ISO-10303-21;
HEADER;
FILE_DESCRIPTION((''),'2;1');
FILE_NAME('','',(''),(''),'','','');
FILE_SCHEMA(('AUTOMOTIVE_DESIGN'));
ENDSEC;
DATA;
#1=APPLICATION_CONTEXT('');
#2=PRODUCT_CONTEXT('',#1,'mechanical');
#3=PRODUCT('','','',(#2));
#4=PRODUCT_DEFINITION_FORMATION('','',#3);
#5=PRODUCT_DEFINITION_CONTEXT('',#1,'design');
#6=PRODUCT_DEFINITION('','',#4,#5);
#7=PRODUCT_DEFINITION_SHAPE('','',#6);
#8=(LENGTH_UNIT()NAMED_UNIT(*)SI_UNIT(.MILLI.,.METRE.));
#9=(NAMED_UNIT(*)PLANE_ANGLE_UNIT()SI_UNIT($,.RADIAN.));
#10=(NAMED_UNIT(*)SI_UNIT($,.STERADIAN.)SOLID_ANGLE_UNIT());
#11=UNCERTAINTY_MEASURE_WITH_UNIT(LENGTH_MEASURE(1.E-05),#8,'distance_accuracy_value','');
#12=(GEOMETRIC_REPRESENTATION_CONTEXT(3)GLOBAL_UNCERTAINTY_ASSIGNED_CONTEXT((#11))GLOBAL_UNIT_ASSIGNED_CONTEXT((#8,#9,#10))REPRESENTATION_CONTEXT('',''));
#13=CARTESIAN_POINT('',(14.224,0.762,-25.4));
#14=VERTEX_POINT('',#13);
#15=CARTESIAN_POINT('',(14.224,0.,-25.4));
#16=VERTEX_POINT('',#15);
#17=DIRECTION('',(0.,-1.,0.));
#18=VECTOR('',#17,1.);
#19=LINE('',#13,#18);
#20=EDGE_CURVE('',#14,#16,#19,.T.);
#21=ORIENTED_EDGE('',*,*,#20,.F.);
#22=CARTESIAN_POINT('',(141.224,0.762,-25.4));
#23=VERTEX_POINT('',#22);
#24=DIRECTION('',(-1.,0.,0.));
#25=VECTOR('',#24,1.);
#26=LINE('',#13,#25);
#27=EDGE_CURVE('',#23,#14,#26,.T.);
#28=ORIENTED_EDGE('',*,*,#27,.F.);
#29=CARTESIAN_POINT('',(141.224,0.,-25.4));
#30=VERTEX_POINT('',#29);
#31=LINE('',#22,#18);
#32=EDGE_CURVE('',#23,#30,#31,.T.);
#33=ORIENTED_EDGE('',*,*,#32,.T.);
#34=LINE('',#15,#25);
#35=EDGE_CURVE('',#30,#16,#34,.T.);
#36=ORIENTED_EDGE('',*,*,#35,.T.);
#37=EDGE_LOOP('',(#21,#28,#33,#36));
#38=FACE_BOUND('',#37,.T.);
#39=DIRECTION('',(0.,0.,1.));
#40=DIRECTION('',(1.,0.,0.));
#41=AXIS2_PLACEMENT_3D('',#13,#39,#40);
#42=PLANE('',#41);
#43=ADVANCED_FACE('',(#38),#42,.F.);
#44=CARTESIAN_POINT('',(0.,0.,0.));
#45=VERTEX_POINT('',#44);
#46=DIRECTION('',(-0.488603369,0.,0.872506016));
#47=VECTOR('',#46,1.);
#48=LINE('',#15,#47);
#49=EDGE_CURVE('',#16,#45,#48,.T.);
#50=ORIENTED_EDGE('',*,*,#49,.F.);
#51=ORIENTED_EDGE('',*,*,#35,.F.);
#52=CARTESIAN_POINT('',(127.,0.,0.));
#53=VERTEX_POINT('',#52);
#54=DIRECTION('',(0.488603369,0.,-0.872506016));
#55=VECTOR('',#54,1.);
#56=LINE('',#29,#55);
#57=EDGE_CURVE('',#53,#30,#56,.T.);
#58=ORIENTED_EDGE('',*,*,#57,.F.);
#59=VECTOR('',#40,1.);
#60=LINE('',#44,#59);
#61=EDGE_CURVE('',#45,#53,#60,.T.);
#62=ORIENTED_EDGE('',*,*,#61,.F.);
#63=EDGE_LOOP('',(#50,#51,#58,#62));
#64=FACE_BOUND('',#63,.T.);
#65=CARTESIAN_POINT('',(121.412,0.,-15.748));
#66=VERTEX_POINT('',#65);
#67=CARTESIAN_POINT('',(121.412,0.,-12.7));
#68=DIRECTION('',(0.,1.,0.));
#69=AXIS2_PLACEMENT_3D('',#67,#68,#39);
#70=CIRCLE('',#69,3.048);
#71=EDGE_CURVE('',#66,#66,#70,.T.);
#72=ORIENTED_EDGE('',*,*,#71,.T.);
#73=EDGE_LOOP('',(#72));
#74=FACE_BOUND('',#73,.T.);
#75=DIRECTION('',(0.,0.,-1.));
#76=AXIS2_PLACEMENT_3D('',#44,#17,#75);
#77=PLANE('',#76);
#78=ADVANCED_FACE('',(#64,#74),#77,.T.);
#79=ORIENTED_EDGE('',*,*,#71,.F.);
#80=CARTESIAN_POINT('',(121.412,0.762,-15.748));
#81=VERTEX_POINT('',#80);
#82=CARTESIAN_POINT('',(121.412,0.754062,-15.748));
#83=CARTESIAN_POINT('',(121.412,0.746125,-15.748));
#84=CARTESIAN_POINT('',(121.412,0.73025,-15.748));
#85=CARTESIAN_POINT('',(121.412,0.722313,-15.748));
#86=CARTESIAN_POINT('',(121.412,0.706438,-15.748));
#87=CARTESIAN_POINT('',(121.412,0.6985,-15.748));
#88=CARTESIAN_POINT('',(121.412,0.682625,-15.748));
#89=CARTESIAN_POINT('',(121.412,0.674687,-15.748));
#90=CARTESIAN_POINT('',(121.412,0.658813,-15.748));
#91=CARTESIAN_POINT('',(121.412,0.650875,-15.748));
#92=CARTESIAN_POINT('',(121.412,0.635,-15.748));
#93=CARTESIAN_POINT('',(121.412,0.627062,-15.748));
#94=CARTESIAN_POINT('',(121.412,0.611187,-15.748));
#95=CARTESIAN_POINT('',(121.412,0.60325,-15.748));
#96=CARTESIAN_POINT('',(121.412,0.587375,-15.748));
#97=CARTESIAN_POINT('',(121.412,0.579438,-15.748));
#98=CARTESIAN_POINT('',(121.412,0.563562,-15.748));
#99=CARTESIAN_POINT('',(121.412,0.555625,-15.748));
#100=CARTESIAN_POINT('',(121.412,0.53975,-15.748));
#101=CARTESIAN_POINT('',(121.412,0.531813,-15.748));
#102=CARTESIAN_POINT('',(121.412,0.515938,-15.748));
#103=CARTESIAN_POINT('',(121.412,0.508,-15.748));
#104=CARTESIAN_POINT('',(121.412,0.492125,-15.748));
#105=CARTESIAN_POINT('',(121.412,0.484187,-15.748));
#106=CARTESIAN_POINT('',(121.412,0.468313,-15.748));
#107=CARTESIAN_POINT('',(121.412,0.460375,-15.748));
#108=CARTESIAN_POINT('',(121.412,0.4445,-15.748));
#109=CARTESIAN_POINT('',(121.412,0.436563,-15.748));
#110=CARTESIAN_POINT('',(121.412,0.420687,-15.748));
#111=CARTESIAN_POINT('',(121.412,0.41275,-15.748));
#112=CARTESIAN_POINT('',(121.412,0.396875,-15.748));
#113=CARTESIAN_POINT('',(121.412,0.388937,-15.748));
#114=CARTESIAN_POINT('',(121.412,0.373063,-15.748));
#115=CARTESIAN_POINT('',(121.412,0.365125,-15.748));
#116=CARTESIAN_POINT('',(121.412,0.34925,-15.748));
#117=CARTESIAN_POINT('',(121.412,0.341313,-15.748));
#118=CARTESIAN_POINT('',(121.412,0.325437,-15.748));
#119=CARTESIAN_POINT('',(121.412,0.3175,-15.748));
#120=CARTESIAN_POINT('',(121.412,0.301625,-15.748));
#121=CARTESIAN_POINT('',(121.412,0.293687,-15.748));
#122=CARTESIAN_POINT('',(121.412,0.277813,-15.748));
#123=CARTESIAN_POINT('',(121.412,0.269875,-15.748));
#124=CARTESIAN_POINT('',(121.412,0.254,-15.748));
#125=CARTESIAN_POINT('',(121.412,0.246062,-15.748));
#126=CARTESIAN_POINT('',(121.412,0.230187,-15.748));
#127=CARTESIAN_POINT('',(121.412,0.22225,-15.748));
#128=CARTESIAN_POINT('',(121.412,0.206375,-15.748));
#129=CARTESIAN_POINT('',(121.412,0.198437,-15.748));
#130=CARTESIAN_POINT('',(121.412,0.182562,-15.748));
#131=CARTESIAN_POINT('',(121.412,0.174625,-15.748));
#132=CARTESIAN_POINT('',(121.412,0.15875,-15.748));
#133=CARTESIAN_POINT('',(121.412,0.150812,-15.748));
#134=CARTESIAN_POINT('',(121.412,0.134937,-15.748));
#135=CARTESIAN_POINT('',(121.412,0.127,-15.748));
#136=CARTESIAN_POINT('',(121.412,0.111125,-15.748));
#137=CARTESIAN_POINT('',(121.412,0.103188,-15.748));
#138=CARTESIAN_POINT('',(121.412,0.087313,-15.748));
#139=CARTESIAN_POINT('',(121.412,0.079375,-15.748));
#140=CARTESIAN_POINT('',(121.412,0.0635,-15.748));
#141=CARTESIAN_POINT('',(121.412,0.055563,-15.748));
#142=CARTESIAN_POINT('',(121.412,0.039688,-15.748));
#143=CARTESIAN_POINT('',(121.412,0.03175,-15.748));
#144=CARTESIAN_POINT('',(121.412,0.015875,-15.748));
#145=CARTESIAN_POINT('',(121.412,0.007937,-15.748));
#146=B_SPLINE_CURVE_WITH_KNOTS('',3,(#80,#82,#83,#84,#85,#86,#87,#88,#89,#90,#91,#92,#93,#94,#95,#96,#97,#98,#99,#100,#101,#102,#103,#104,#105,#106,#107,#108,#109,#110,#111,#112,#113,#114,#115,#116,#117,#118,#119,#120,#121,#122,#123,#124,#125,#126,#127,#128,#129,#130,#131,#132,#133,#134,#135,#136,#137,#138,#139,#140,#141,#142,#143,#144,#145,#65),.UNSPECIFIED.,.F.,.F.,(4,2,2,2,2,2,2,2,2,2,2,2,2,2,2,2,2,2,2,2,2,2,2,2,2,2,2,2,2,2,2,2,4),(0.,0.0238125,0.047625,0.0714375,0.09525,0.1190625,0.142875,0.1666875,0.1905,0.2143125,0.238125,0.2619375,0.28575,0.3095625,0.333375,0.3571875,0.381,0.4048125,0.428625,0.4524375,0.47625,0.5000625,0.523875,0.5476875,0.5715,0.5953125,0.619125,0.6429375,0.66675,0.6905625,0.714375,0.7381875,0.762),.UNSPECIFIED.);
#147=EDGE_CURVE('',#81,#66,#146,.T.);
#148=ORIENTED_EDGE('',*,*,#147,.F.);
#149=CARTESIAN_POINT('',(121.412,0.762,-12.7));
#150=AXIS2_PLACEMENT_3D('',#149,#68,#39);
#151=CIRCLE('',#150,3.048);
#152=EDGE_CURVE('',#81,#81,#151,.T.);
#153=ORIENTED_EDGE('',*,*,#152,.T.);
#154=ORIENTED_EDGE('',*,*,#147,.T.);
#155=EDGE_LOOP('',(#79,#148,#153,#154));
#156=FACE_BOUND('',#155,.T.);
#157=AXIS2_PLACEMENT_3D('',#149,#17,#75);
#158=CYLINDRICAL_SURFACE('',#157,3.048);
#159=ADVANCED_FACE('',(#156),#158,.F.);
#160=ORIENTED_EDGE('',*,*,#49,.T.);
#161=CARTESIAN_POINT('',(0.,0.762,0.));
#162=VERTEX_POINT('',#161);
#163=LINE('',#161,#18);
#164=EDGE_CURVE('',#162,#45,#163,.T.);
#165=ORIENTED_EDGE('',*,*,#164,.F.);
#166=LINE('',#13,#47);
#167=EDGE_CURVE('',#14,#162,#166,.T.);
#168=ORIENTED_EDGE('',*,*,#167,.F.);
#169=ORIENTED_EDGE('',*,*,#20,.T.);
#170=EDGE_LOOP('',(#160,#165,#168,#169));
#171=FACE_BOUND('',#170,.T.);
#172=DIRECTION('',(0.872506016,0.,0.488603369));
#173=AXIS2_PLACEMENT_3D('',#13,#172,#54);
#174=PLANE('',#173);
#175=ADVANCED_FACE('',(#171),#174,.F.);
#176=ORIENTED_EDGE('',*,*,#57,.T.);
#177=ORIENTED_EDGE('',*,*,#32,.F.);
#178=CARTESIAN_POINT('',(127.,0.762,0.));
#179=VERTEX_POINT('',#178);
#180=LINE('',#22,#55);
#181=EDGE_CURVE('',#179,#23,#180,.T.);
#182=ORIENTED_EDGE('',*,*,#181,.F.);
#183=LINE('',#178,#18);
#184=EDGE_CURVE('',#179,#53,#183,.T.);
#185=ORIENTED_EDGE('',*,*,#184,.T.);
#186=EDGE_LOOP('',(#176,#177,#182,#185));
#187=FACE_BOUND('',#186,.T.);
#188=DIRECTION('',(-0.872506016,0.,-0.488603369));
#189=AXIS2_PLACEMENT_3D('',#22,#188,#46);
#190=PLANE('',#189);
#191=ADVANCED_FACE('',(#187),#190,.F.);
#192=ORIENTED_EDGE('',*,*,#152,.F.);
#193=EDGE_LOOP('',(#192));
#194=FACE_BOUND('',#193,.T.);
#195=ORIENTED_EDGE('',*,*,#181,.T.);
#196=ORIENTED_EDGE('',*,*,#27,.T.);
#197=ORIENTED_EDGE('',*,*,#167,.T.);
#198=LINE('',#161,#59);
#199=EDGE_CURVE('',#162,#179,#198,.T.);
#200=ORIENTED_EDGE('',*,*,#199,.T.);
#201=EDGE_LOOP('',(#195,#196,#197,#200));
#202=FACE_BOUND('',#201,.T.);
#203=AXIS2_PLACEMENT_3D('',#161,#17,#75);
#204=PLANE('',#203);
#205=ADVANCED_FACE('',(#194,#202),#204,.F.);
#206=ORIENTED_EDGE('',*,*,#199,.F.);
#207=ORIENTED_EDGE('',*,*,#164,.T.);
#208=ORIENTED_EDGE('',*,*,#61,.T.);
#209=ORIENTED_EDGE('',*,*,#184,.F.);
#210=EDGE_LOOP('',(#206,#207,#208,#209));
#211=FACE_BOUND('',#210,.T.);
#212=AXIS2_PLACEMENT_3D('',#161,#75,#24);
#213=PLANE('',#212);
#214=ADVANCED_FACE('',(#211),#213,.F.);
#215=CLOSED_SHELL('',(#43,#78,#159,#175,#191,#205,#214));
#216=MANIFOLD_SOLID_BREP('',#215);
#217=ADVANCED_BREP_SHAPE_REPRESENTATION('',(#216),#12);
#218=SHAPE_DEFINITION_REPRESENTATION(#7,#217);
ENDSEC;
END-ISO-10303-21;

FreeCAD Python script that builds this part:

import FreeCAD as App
import Part
import Sketcher
Q = App.Units.Quantity

doc = App.newDocument("Part")
params = doc.addObject("Spreadsheet::Sheet", "Params")
for row, (alias, value) in enumerate([
    ("sketch1_diameter", "0.24 in"),
    ("sketch1_width", "5 in"),
    ("pad1_length", "0.03 in"),
], start=1):
    params.set(f"A{row}", alias)
    params.set(f"B{row}", "=" + value)
    params.setAlias(f"B{row}", alias)

body = doc.addObject("PartDesign::Body", "Body")

sketch1 = body.newObject("Sketcher::SketchObject", "Sketch")
sketch1.AttachmentSupport = (doc.getObject("XZ_Plane"), [""])
sketch1.MapMode = "FlatFace"
sketch1.addGeometry([
    Part.LineSegment(App.Vector(14.224, -25.4, 0), App.Vector(0, 0, 0)),
    Part.LineSegment(App.Vector(0, 0, 0), App.Vector(127, 0, 0)),
    Part.LineSegment(App.Vector(127, 0, 0), App.Vector(141.224, -25.4, 0)),
    Part.LineSegment(App.Vector(141.224, -25.4, 0), App.Vector(14.224, -25.4, 0)),
    Part.Circle(App.Vector(121.412, -12.7, 0), App.Vector(0, 0, 1), 3.048),
], False)
sketch1.addConstraint([
    Sketcher.Constraint("Coincident", 0, 2, 1, 1),
    Sketcher.Constraint("Coincident", 1, 2, 2, 1),
    Sketcher.Constraint("Coincident", 2, 2, 3, 1),
    Sketcher.Constraint("Coincident", 3, 2, 0, 1),
    Sketcher.Constraint("Horizontal", 1),
    Sketcher.Constraint("Horizontal", 3),
    Sketcher.Constraint("Coincident", 0, 2, -1, 1),
    Sketcher.Constraint("Parallel", 0, 2),
    Sketcher.Constraint("Diameter", 4, Q("0.24 in")),
    Sketcher.Constraint("DistanceX", 1, 1, 1, 2, Q("5 in")),
    Sketcher.Constraint("DistanceY", 2, 2, -1, 1, Q("1 in")),
    Sketcher.Constraint("DistanceY", 4, 3, -1, 1, Q("0.5 in")),
    Sketcher.Constraint("DistanceX", -1, 1, 4, 3, Q("4.78 in")),
    Sketcher.Constraint("DistanceX", -1, 1, 2, 2, Q("5.56 in")),
])
sketch1.setExpression("Constraints[8]", "Params.sketch1_diameter")
sketch1.setExpression("Constraints[9]", "Params.sketch1_width")
pad1 = body.newObject("PartDesign::Pad", "Pad")
pad1.Profile = sketch1
pad1.setExpression("Length", "Params.pad1_length")
pad1.Reversed = True

doc.recompute()
